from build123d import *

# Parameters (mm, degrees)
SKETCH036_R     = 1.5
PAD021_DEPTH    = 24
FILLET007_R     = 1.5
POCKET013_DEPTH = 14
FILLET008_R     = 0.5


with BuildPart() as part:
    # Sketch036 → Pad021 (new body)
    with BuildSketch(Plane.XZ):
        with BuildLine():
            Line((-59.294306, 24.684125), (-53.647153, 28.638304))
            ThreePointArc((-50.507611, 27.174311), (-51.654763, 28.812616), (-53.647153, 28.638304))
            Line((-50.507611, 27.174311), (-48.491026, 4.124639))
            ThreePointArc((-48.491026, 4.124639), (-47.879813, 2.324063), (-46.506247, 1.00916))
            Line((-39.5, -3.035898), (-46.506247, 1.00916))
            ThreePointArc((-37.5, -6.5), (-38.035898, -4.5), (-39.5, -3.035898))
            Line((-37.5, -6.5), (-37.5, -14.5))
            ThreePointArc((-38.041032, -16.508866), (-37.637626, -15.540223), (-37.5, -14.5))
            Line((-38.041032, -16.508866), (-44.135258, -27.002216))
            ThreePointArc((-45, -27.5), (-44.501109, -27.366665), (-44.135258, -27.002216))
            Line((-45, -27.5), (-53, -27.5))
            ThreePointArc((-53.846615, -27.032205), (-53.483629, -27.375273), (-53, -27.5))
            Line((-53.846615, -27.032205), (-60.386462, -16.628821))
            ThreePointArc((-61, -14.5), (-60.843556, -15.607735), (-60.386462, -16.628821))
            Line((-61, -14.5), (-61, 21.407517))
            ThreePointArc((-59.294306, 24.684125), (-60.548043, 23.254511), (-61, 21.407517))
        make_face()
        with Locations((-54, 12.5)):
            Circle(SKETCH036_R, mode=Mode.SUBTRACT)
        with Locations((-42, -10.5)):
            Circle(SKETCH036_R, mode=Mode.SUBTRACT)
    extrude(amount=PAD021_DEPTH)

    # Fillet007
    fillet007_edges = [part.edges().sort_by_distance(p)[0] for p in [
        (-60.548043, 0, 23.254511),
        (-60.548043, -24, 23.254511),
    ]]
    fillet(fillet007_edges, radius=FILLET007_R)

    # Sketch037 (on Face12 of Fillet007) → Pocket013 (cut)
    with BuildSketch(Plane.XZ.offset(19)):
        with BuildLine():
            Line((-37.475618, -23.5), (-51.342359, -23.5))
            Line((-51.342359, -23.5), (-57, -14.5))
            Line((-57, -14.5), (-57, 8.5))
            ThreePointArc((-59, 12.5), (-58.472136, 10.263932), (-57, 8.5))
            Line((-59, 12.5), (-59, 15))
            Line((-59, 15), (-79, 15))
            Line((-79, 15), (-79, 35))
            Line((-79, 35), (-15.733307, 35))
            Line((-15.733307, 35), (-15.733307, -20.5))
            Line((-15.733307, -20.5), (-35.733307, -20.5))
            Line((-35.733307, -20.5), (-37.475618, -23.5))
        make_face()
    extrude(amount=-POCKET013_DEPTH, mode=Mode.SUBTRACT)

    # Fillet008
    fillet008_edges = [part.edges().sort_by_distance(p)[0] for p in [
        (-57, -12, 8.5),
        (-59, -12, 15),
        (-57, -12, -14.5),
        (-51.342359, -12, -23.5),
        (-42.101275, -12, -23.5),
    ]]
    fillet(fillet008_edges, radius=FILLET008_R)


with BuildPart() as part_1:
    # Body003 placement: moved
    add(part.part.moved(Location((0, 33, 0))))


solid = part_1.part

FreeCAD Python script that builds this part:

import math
import FreeCAD as App
import Part
import Sketcher
from FreeCAD import Vector
Q = App.Units.Quantity


def edges_at(feature, points):
    """Names of the edges that pass closest to the given points."""
    edges = feature.Shape.Edges
    near = lambda p: min(range(len(edges)), key=lambda i: edges[i].distToShape(Part.Vertex(*p))[0])
    return sorted({f"Edge{near(p) + 1}" for p in points})

doc = App.newDocument("Part")
body = doc.addObject("PartDesign::Body", "Body")

# Sketch on XZ plane
sketch1 = body.newObject("Sketcher::SketchObject", "Sketch")
sketch1.AttachmentSupport = (doc.getObject("XZ_Plane"), [""])
sketch1.MapMode = "FlatFace"
sketch1.addGeometry([
    Part.LineSegment(Vector(-53.647153, 28.638304, 0), Vector(-59.294306, 24.684125, 0)),  # 0
    Part.ArcOfCircle(Part.Circle(Vector(-56.999996, 21.407515, 0), Vector(0, 0, 1), 4.000004), math.radians(125.000034), math.radians(179.99997)),  # 1
    Part.LineSegment(Vector(-61, 21.407517, 0), Vector(-61, -14.5, 0)),  # 2
    Part.ArcOfCircle(Part.Circle(Vector(-56.999993, -14.499999, 0), Vector(0, 0, 1), 4.000007), math.radians(-179.999982), math.radians(-147.845469)),  # 3
    Part.LineSegment(Vector(-60.386462, -16.628821, 0), Vector(-53.846615, -27.032205, 0)),  # 4
    Part.ArcOfCircle(Part.Circle(Vector(-53, -26.500001, 0), Vector(0, 0, 1), 0.999999), math.radians(-147.845478), math.radians(-89.999992)),  # 5
    Part.LineSegment(Vector(-53, -27.5, 0), Vector(-45, -27.5, 0)),  # 6
    Part.ArcOfCircle(Part.Circle(Vector(-44.999999, -26.500002, 0), Vector(0, 0, 1), 0.999998), math.radians(-90.000059), math.radians(-30.146647)),  # 7
    Part.LineSegment(Vector(-44.135258, -27.002216, 0), Vector(-38.041032, -16.508866, 0)),  # 8
    Part.ArcOfCircle(Part.Circle(Vector(-41.500015, -14.499996, 0), Vector(0, 0, 1), 4.000015), math.radians(-30.146683), math.radians(-0.000051)),  # 9
    Part.LineSegment(Vector(-37.5, -14.5, 0), Vector(-37.5, -6.5, 0)),  # 10
    Part.ArcOfCircle(Part.Circle(Vector(-41.499999, -6.499999, 0), Vector(0, 0, 1), 3.999999), math.radians(-0.000013), math.radians(60.000008)),  # 11
    Part.LineSegment(Vector(-39.5, -3.035898, 0), Vector(-46.506247, 1.00916, 0)),  # 12
    Part.ArcOfCircle(Part.Circle(Vector(-44.506249, 4.473261, 0), Vector(0, 0, 1), 3.999999), math.radians(-175.000014), math.radians(-119.999986)),  # 13
    Part.LineSegment(Vector(-48.491026, 4.124639, 0), Vector(-50.507611, 27.174311, 0)),  # 14
    Part.ArcOfCircle(Part.Circle(Vector(-52.5, 27.000002, 0), Vector(0, 0, 1), 1.999999), math.radians(4.999944), math.radians(125.000041)),  # 15
    Part.Circle(Vector(-42, -10.5, 0), Vector(0, 0, 1), 1.5),  # 16
    Part.Circle(Vector(-54, 12.5, 0), Vector(0, 0, 1), 1.5),  # 17
], False)
sketch1.addConstraint([
    Sketcher.Constraint("Tangent", 0, 2, 1, 1),
    Sketcher.Constraint("Tangent", 1, 2, 2, 1),
    Sketcher.Constraint("Tangent", 2, 2, 3, 1),
    Sketcher.Constraint("Tangent", 3, 2, 4, 1),
    Sketcher.Constraint("Tangent", 4, 2, 5, 1),
    Sketcher.Constraint("Tangent", 5, 2, 6, 1),
    Sketcher.Constraint("Tangent", 6, 2, 7, 1),
    Sketcher.Constraint("Tangent", 7, 2, 8, 1),
    Sketcher.Constraint("Tangent", 8, 2, 9, 1),
    Sketcher.Constraint("Tangent", 9, 2, 10, 1),
    Sketcher.Constraint("Tangent", 10, 2, 11, 1),
    Sketcher.Constraint("Tangent", 11, 2, 12, 1),
    Sketcher.Constraint("Tangent", 12, 2, 13, 2),
    Sketcher.Constraint("Tangent", 13, 1, 14, 1),
    Sketcher.Constraint("Tangent", 14, 2, 15, 1),
    Sketcher.Constraint("Tangent", 15, 2, 0, 1),
    Sketcher.Constraint("Vertical", 2),
    Sketcher.Constraint("Horizontal", 6),
    Sketcher.Constraint("Vertical", 10),
    Sketcher.Constraint("Equal", 5, 7),
    Sketcher.Constraint("Equal", 11, 13),
    Sketcher.Constraint("Equal", 16, 17),
    Sketcher.Constraint("Horizontal", 2, 2, 9, 2),
    Sketcher.Constraint("Equal", 6, 10),
    Sketcher.Constraint("Diameter", 16, 3.0),
    Sketcher.Constraint("Radius", 5, 0.999999),
    Sketcher.Constraint("Radius", 11, 3.999999),
    Sketcher.Constraint("Radius", 15, 1.999999),
    Sketcher.Constraint("DistanceX", 6, 1, 6, 2, 8.0),
    Sketcher.Constraint("Angle", 0, Q("-145.000001 deg")),
    Sketcher.Constraint("Angle", 12, Q("150.000004 deg")),
    Sketcher.Constraint("Angle", 14, Q("95 deg")),
    Sketcher.Constraint("DistanceX", 5, 3, -1, 1, 53.0),
    Sketcher.Constraint("DistanceY", -1, 1, 15, 3, 27.000002),
    Sketcher.Constraint("DistanceX", 16, 3, -1, 1, 42.0),
    Sketcher.Constraint("DistanceX", 17, 3, -1, 1, 54.0),
    Sketcher.Constraint("DistanceX", 1, 2, -1, 1, 61.0),
    Sketcher.Constraint("DistanceX", 15, 3, 11, 3, 11.0),
    Sketcher.Constraint("DistanceY", 16, 3, 11, 3, 4.000001),
    Sketcher.Constraint("DistanceY", 11, 3, 17, 3, 18.999999),
    Sketcher.Constraint("DistanceY", 5, 3, 2, 2, 12.000001),
    Sketcher.Constraint("DistanceY", 3, 3, -1, 1, 14.499999),
    Sketcher.Constraint("DistanceX", 11, 3, -1, 1, 41.499999),
    Sketcher.Constraint("Radius", 1, 4.000004),
    Sketcher.Constraint("Radius", 3, 4.000007),
    Sketcher.Constraint("Radius", 9, 4.000015),
])
pad1 = body.newObject("PartDesign::Pad", "Pad")
pad1.Profile = sketch1
pad1.Length = 24
doc.recompute()

fillet = body.newObject("PartDesign::Fillet", "Fillet")
fillet.Base = (pad1, edges_at(pad1, [(-60.548, 0, 23.255), (-60.548, -24, 23.255)]))
fillet.Radius = 1.5

# Sketch on XZ plane
sketch2 = body.newObject("Sketcher::SketchObject", "Sketch001")
sketch2.AttachmentSupport = (doc.getObject("XZ_Plane"), [""])
sketch2.MapMode = "FlatFace"
sketch2.AttachmentOffset = App.Placement(Vector(0, 0, 19), App.Rotation())
sketch2.addGeometry([
    Part.LineSegment(Vector(-51.342359, -23.5, 0), Vector(-37.475618, -23.5, 0)),  # 0
    Part.LineSegment(Vector(-37.475618, -23.5, 0), Vector(-35.733307, -20.5, 0)),  # 1
    Part.LineSegment(Vector(-35.733307, -20.5, 0), Vector(-15.733307, -20.5, 0)),  # 2
    Part.LineSegment(Vector(-15.733307, -20.5, 0), Vector(-15.733307, 35, 0)),  # 3
    Part.LineSegment(Vector(-15.733307, 35, 0), Vector(-79, 35, 0)),  # 4
    Part.LineSegment(Vector(-79, 35, 0), Vector(-79, 15, 0)),  # 5
    Part.LineSegment(Vector(-79, 15, 0), Vector(-59, 15, 0)),  # 6
    Part.LineSegment(Vector(-59, 15, 0), Vector(-59, 12.5, 0)),  # 7
    Part.ArcOfCircle(Part.Circle(Vector(-54, 12.5, 0), Vector(0, 0, 1), 5), math.radians(179.999998), math.radians(233.130105)),  # 8
    Part.LineSegment(Vector(-57, 8.5, 0), Vector(-57, -14.5, 0)),  # 9
    Part.LineSegment(Vector(-57, -14.5, 0), Vector(-51.342359, -23.5, 0)),  # 10
], False)
sketch2.addConstraint([
    Sketcher.Constraint("Coincident", 0, 2, 1, 1),
    Sketcher.Constraint("Coincident", 1, 2, 2, 1),
    Sketcher.Constraint("Coincident", 2, 2, 3, 1),
    Sketcher.Constraint("Coincident", 3, 2, 4, 1),
    Sketcher.Constraint("Coincident", 4, 2, 5, 1),
    Sketcher.Constraint("Coincident", 5, 2, 6, 1),
    Sketcher.Constraint("Coincident", 6, 2, 7, 1),
    Sketcher.Constraint("Tangent", 7, 2, 8, 1),
    Sketcher.Constraint("Coincident", 8, 2, 9, 1),
    Sketcher.Constraint("Coincident", 9, 2, 10, 1),
    Sketcher.Constraint("Coincident", 10, 2, 0, 1),
    Sketcher.Constraint("Horizontal", 0),
    Sketcher.Constraint("Horizontal", 2),
    Sketcher.Constraint("Vertical", 3),
    Sketcher.Constraint("Horizontal", 4),
    Sketcher.Constraint("Vertical", 5),
    Sketcher.Constraint("Horizontal", 6),
    Sketcher.Constraint("Vertical", 7),
    Sketcher.Constraint("Vertical", 9),
    Sketcher.Constraint("Equal", 2, 6),
    Sketcher.Constraint("Equal", 6, 5),
    Sketcher.Constraint("Radius", 8, 5.0),
    Sketcher.Constraint("DistanceX", 2, 1, 2, 2, 20.0),
    Sketcher.Constraint("DistanceY", 9, 2, 9, 1, 23.0),
    Sketcher.Constraint("DistanceY", 3, 1, 3, 2, 55.5),
    Sketcher.Constraint("DistanceY", 7, 2, 7, 1, 2.5),
    Sketcher.Constraint("DistanceX", 8, 3, -1, 1, 54.0),
    Sketcher.Constraint("DistanceY", -1, 1, 3, 2, 35.0),
    Sketcher.Constraint("DistanceX", 8, 2, -1, 1, 57.0),
    Sketcher.Constraint("DistanceY", 0, 2, 8, 3, 36.0),
    Sketcher.Constraint("DistanceX", 0, 1, 0, 2, 13.866741),
    Sketcher.Constraint("DistanceX", 4, 2, 4, 1, 63.266693),
    Sketcher.Constraint("DistanceX", 10, 2, -1, 1, 51.342359),
])
pocket1 = body.newObject("PartDesign::Pocket", "Pocket")
pocket1.Profile = sketch2
pocket1.Length = 14
doc.recompute()

fillet2 = body.newObject("PartDesign::Fillet", "Fillet001")
fillet2.Base = (pocket1, edges_at(pocket1, [
    (-57, -12, 8.5),
    (-59, -12, 15),
    (-57, -12, -14.5),
    (-51.342, -12, -23.5),
    (-42.101, -12, -23.5),
]))
fillet2.Radius = 0.5
body2 = doc.addObject("PartDesign::Body", "Body001")
doc.recompute()

body.Placement = App.Placement(Vector(0, 33, 0), App.Rotation(Vector(0, 0, 1), 0))
boolean = body2.newObject("PartDesign::Boolean", "Boolean")
boolean.Type = "Fuse"
boolean.addObjects([body])

doc.recompute()
